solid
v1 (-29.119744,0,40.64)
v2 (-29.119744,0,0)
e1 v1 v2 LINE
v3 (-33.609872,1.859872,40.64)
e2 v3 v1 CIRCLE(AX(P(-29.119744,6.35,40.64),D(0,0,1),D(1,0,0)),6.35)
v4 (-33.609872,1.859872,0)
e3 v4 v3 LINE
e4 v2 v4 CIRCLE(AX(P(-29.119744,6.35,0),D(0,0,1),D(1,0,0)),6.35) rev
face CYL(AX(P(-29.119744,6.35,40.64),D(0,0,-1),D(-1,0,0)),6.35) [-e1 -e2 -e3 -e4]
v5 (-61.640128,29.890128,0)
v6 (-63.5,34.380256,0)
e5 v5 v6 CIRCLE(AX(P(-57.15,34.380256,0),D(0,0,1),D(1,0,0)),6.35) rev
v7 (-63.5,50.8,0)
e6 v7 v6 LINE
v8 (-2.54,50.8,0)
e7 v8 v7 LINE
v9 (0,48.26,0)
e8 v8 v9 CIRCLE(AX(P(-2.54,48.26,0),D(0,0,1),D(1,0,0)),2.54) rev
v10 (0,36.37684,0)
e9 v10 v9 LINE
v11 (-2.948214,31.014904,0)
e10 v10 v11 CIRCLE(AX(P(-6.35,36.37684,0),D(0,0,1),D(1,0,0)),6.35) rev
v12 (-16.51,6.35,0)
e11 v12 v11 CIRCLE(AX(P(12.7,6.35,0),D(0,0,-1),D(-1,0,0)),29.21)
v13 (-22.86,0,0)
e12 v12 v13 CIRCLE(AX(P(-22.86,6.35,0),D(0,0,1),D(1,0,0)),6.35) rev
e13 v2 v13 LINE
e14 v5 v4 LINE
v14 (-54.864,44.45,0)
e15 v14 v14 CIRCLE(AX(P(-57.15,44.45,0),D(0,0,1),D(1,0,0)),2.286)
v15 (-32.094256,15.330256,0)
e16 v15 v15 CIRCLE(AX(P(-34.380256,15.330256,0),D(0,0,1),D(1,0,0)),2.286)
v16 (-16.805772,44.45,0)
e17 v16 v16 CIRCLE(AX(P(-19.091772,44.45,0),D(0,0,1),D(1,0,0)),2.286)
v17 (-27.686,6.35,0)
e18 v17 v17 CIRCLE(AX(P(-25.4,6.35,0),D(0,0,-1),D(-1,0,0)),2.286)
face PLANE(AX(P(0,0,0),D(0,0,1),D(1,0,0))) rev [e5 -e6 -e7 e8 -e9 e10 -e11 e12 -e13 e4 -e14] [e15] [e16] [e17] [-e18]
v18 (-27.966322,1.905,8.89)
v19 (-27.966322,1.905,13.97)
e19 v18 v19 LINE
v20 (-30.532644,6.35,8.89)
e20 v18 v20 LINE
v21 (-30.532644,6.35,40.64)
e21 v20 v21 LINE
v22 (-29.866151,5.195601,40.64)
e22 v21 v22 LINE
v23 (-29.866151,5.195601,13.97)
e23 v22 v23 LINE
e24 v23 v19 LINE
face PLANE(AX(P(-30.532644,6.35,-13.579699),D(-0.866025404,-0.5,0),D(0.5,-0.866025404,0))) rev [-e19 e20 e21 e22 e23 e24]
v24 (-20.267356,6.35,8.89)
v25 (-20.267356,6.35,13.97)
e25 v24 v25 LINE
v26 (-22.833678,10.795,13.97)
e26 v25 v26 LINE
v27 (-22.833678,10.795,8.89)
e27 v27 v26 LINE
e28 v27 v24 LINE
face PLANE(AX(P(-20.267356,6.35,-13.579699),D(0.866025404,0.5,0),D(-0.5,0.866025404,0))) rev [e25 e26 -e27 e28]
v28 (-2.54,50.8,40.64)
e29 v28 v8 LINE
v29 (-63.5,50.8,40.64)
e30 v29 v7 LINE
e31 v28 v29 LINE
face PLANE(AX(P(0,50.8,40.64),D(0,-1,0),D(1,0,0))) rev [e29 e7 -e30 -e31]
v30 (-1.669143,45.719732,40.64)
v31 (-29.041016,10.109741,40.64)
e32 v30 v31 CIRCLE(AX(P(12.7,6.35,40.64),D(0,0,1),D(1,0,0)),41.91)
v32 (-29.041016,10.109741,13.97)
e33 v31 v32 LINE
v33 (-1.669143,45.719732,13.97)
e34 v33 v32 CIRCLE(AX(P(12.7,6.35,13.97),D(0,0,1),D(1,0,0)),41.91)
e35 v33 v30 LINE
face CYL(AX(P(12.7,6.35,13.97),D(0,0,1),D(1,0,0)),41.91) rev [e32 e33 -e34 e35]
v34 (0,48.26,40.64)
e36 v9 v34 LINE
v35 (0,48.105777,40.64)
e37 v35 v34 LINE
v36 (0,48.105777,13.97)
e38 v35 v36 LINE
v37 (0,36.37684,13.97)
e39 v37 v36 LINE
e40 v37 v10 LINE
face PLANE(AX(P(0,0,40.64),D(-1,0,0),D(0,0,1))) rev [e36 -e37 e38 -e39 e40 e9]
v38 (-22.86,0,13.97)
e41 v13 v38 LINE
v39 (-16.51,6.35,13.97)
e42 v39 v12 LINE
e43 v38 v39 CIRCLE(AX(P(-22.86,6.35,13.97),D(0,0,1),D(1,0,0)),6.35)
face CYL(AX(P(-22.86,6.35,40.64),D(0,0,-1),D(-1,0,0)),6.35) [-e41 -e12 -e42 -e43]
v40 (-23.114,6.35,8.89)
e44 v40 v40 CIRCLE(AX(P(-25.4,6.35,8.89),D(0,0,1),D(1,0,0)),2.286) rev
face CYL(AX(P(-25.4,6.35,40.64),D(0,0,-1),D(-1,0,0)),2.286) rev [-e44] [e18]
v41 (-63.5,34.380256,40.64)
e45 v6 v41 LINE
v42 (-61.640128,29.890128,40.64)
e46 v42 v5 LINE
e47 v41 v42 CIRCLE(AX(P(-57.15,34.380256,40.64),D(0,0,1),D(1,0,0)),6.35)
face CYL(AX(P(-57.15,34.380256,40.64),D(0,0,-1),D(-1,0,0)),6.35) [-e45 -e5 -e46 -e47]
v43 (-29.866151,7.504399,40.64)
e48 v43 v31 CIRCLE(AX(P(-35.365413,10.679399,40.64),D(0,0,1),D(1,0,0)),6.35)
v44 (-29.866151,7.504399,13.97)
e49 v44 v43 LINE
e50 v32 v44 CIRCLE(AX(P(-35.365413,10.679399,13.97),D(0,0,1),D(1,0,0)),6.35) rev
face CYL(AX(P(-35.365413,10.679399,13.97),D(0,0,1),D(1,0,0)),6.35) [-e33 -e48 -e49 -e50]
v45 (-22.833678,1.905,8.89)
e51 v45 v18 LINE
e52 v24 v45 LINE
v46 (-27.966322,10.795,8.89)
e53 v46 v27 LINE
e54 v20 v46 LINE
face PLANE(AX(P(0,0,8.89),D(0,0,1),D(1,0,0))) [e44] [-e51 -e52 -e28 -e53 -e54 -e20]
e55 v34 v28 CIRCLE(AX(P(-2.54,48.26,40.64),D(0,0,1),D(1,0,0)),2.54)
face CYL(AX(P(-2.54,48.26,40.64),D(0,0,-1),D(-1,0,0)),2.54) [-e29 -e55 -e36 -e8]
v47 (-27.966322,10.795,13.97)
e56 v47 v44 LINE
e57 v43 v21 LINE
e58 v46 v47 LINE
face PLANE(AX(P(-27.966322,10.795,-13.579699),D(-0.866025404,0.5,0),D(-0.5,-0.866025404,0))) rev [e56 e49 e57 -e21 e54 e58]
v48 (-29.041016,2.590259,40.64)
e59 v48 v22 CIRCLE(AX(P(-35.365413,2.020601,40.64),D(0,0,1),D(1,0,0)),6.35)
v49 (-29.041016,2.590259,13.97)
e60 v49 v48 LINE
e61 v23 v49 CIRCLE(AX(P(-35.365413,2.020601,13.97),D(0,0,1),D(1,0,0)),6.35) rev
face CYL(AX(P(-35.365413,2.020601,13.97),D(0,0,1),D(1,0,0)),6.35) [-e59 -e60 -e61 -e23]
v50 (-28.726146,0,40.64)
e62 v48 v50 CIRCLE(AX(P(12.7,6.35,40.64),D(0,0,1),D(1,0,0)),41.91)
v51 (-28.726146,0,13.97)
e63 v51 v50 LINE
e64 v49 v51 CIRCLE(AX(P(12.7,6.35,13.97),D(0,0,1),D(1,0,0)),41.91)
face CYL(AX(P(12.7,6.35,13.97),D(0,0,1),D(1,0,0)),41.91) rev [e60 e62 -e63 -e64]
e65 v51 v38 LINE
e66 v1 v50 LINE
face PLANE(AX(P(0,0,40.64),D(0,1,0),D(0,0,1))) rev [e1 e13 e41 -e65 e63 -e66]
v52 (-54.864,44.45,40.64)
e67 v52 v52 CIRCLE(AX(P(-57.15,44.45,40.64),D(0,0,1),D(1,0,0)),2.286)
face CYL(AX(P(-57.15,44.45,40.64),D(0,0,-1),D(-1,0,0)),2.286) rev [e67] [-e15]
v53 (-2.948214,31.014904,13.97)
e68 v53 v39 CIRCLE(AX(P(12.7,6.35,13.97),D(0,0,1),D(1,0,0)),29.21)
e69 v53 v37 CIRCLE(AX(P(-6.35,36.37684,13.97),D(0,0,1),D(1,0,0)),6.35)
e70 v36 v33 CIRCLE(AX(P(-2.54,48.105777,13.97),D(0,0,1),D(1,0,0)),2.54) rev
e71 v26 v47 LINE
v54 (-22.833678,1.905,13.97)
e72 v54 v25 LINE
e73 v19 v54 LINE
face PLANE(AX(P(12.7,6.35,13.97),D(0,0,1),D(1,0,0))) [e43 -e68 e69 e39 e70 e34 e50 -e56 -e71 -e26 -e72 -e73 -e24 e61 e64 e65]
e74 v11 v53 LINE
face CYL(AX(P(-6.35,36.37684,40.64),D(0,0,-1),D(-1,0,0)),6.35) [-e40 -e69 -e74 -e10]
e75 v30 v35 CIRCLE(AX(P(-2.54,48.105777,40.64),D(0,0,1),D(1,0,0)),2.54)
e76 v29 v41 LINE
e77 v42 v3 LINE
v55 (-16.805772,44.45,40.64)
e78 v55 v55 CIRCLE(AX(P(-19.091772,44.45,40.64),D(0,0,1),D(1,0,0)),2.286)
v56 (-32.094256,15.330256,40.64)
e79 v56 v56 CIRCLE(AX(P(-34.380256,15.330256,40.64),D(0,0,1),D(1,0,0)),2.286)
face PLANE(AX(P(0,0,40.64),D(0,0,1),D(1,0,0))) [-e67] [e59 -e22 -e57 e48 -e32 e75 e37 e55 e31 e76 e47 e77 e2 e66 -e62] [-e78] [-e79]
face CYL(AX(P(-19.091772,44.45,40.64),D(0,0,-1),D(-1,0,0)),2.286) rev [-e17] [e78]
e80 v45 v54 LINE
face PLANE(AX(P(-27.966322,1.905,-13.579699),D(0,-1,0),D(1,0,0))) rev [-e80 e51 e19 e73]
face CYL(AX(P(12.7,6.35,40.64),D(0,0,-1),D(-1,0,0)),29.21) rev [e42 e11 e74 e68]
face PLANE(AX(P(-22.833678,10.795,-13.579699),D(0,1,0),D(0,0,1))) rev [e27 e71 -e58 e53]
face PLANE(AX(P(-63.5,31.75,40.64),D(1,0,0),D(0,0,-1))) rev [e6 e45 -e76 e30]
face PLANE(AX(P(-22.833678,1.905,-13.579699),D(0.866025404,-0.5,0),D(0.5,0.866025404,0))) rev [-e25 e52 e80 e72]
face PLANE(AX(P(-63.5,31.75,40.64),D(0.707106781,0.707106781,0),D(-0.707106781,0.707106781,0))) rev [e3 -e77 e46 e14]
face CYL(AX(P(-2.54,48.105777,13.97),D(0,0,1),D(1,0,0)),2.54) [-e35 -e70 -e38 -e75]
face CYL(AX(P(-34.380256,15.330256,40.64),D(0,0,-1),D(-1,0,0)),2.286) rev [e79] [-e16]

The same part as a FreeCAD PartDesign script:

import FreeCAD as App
import Part
import Sketcher
Q = App.Units.Quantity


def edges_at(feature, points):
    """Names of the edges that pass closest to the given points."""
    edges = feature.Shape.Edges
    near = lambda p: min(range(len(edges)), key=lambda i: edges[i].distToShape(Part.Vertex(*p))[0])
    return sorted({f"Edge{near(p) + 1}" for p in points})


def add_polygon(sketch, points):
    """Adds a closed chain of lines whose ends are joined by coincident constraints."""
    first, n = sketch.GeometryCount, len(points)
    for a, b in zip(points, points[1:] + points[:1]):
        sketch.addGeometry(Part.LineSegment(App.Vector(*a, 0), App.Vector(*b, 0)), False)
    for i in range(n):
        sketch.addConstraint(Sketcher.Constraint("Coincident", first + i, 2, first + (i + 1) % n, 1))

doc = App.newDocument("Part")
body = doc.addObject("PartDesign::Body", "Body")

# Sketch on XY plane
sketch1 = body.newObject("Sketcher::SketchObject", "Sketch")
sketch1.AttachmentSupport = (doc.getObject("XY_Plane"), [""])
sketch1.MapMode = "FlatFace"
add_polygon(sketch1, [(-63.5, 31.8), (-31.8, 0), (0, 0), (0, 50.8), (-63.5, 50.8)])  # lines 0-4
sketch1.addGeometry(Part.Circle(App.Vector(-34.4, 15.3, 0), App.Vector(0, 0, 1), 2.3), False)  # 5
sketch1.addGeometry(Part.Circle(App.Vector(-57.1, 44.5, 0), App.Vector(0, 0, 1), 2.3), False)  # 6
sketch1.addGeometry(Part.Circle(App.Vector(-19.1, 44.5, 0), App.Vector(0, 0, 1), 2.3), False)  # 7
sketch1.addConstraint(Sketcher.Constraint("Horizontal", 1))
sketch1.addConstraint(Sketcher.Constraint("Vertical", 2))
sketch1.addConstraint(Sketcher.Constraint("Horizontal", 3))
sketch1.addConstraint(Sketcher.Constraint("Vertical", 4))
sketch1.addConstraint(Sketcher.Constraint("Coincident", 1, 2, -1, 1))
sketch1.addConstraint(Sketcher.Constraint("Equal", 5, 6))
sketch1.addConstraint(Sketcher.Constraint("Equal", 6, 7))
sketch1.addConstraint(Sketcher.Constraint("Horizontal", 6, 3, 7, 3))
sketch1.addConstraint(Sketcher.Constraint("Diameter", 5, Q("0.18 in")))
sketch1.addConstraint(Sketcher.Constraint("DistanceY", 2, 1, 2, 2, Q("2 in")))
sketch1.addConstraint(Sketcher.Constraint("DistanceX", 3, 2, 3, 1, Q("2.5 in")))
sketch1.addConstraint(Sketcher.Constraint("Angle", 0, Q("-45 deg")))
sketch1.addConstraint(Sketcher.Constraint("DistanceX", 6, 3, 0, 2, Q("1 in")))
sketch1.addConstraint(Sketcher.Constraint("DistanceX", 1, 1, 1, 2, Q("1.25 in")))
sketch1.addConstraint(Sketcher.Constraint("DistanceY", 4, 2, 6, 3, Q("0.5 in")))
sketch1.addConstraint(Sketcher.Constraint("DistanceX", 7, 3, -1, 1, 19.091772))
sketch1.addConstraint(Sketcher.Constraint("DistanceX", 5, 3, -1, 1, 34.380256))
sketch1.addConstraint(Sketcher.Constraint("DistanceY", -1, 1, 5, 3, 15.330256))
pad1 = body.newObject("PartDesign::Pad", "Pad")
pad1.Profile = sketch1
pad1.Length = Q("1.6 in")

# Sketch on XY plane
sketch2 = body.newObject("Sketcher::SketchObject", "Sketch001")
sketch2.AttachmentSupport = (doc.getObject("XY_Plane"), [""])
sketch2.MapMode = "FlatFace"
sketch2.AttachmentOffset = App.Placement(App.Vector(0, 0, 1.6 * 25.4), App.Rotation())
sketch2.addGeometry(Part.Circle(App.Vector(13, 6, 0), App.Vector(0, 0, 1), 42), False)
sketch2.addConstraint(Sketcher.Constraint("Diameter", 0, Q("3.3 in")))
sketch2.addConstraint(Sketcher.Constraint("DistanceX", -1, 1, 0, 3, Q("0.5 in")))
sketch2.addConstraint(Sketcher.Constraint("DistanceY", -1, 1, 0, 3, Q("0.25 in")))
pocket1 = body.newObject("PartDesign::Pocket", "Pocket")
pocket1.Profile = sketch2
pocket1.Length = Q("1.05 in")

# Sketch on XY plane
sketch3 = body.newObject("Sketcher::SketchObject", "Sketch002")
sketch3.AttachmentSupport = (doc.getObject("XY_Plane"), [""])
sketch3.MapMode = "FlatFace"
sketch3.addGeometry(Part.Circle(App.Vector(13, 6, 0), App.Vector(0, 0, 1), 29), False)
sketch3.addConstraint(Sketcher.Constraint("Diameter", 0, Q("2.3 in")))
sketch3.addConstraint(Sketcher.Constraint("DistanceX", -1, 1, 0, 3, Q("0.5 in")))
sketch3.addConstraint(Sketcher.Constraint("DistanceY", -1, 1, 0, 3, Q("0.25 in")))
pocket2 = body.newObject("PartDesign::Pocket", "Pocket001")
pocket2.Profile = sketch3
pocket2.Type = "ThroughAll"
pocket2.Reversed = True

# Sketch on XY plane
sketch4 = body.newObject("Sketcher::SketchObject", "Sketch003")
sketch4.AttachmentSupport = (doc.getObject("XY_Plane"), [""])
sketch4.MapMode = "FlatFace"
sketch4.addGeometry(Part.Circle(App.Vector(-25.4, 6.3, 0), App.Vector(0, 0, 1), 2.3), False)
sketch4.addConstraint(Sketcher.Constraint("Diameter", 0, Q("0.18 in")))
sketch4.addConstraint(Sketcher.Constraint("DistanceX", 0, 3, -1, 1, Q("1 in")))
sketch4.addConstraint(Sketcher.Constraint("DistanceY", -1, 1, 0, 3, Q("0.25 in")))
pocket3 = body.newObject("PartDesign::Pocket", "Pocket002")
pocket3.Profile = sketch4
pocket3.Type = "ThroughAll"
pocket3.Reversed = True

# Sketch on XY plane
sketch5 = body.newObject("Sketcher::SketchObject", "Sketch004")
sketch5.AttachmentSupport = (doc.getObject("XY_Plane"), [""])
sketch5.MapMode = "FlatFace"
sketch5.AttachmentOffset = App.Placement(App.Vector(0, 0, 1.6 * 25.4), App.Rotation())
add_polygon(sketch5, [(-20, 6), (-23, 11), (-28, 11), (-31, 6), (-28, 2), (-23, 2)])  # lines 0-5
sketch5.addConstraint(Sketcher.Constraint("Horizontal", 1))
sketch5.addConstraint(Sketcher.Constraint("Horizontal", 4))
sketch5.addConstraint(Sketcher.Constraint("Parallel", 0, 3))
sketch5.addConstraint(Sketcher.Constraint("Parallel", 2, 5))
sketch5.addConstraint(Sketcher.Constraint("Horizontal", 2, 2, 5, 2))
sketch5.addConstraint(Sketcher.Constraint("Vertical", 1, 2, 3, 2))
sketch5.addConstraint(Sketcher.Constraint("Vertical", 0, 2, 4, 2))
sketch5.addConstraint(Sketcher.Constraint("Angle", 0, Q("120 deg")))
sketch5.addConstraint(Sketcher.Constraint("DistanceY", -1, 1, 2, 2, Q("0.25 in")))
sketch5.addConstraint(Sketcher.Constraint("DistanceY", 3, 2, 1, 2, Q("0.35 in")))
sketch5.addConstraint(Sketcher.Constraint("DistanceX", 1, 2, 1, 1, 5.132644))
sketch5.addConstraint(Sketcher.Constraint("DistanceX", 0, 2, -1, 1, 22.833678))
pocket4 = body.newObject("PartDesign::Pocket", "Pocket003")
pocket4.Profile = sketch5
pocket4.Length = Q("1.25 in")
doc.recompute()

fillet = body.newObject("PartDesign::Fillet", "Fillet")
fillet.Base = (pocket4, edges_at(pocket4, [
    (0, 32.655, 6.985),
    (-15.811, 0, 6.985),
    (-31.75, 0, 20.32),
    (-63.5, 31.75, 20.32),
]))
fillet.Radius = Q("0.25 in")
doc.recompute()

fillet2 = body.newObject("PartDesign::Fillet", "Fillet001")
fillet2.Base = (fillet, edges_at(fillet, [(0, 46.289, 27.305), (0, 50.8, 20.32)]))
fillet2.Radius = Q("0.1 in")
doc.recompute()

fillet3 = body.newObject("PartDesign::Fillet", "Fillet002")
fillet3.Base = (fillet2, edges_at(fillet2, [(-29.141, 3.939, 27.305), (-29.141, 8.761, 27.305)]))
fillet3.Radius = Q("0.25 in")

doc.recompute()
